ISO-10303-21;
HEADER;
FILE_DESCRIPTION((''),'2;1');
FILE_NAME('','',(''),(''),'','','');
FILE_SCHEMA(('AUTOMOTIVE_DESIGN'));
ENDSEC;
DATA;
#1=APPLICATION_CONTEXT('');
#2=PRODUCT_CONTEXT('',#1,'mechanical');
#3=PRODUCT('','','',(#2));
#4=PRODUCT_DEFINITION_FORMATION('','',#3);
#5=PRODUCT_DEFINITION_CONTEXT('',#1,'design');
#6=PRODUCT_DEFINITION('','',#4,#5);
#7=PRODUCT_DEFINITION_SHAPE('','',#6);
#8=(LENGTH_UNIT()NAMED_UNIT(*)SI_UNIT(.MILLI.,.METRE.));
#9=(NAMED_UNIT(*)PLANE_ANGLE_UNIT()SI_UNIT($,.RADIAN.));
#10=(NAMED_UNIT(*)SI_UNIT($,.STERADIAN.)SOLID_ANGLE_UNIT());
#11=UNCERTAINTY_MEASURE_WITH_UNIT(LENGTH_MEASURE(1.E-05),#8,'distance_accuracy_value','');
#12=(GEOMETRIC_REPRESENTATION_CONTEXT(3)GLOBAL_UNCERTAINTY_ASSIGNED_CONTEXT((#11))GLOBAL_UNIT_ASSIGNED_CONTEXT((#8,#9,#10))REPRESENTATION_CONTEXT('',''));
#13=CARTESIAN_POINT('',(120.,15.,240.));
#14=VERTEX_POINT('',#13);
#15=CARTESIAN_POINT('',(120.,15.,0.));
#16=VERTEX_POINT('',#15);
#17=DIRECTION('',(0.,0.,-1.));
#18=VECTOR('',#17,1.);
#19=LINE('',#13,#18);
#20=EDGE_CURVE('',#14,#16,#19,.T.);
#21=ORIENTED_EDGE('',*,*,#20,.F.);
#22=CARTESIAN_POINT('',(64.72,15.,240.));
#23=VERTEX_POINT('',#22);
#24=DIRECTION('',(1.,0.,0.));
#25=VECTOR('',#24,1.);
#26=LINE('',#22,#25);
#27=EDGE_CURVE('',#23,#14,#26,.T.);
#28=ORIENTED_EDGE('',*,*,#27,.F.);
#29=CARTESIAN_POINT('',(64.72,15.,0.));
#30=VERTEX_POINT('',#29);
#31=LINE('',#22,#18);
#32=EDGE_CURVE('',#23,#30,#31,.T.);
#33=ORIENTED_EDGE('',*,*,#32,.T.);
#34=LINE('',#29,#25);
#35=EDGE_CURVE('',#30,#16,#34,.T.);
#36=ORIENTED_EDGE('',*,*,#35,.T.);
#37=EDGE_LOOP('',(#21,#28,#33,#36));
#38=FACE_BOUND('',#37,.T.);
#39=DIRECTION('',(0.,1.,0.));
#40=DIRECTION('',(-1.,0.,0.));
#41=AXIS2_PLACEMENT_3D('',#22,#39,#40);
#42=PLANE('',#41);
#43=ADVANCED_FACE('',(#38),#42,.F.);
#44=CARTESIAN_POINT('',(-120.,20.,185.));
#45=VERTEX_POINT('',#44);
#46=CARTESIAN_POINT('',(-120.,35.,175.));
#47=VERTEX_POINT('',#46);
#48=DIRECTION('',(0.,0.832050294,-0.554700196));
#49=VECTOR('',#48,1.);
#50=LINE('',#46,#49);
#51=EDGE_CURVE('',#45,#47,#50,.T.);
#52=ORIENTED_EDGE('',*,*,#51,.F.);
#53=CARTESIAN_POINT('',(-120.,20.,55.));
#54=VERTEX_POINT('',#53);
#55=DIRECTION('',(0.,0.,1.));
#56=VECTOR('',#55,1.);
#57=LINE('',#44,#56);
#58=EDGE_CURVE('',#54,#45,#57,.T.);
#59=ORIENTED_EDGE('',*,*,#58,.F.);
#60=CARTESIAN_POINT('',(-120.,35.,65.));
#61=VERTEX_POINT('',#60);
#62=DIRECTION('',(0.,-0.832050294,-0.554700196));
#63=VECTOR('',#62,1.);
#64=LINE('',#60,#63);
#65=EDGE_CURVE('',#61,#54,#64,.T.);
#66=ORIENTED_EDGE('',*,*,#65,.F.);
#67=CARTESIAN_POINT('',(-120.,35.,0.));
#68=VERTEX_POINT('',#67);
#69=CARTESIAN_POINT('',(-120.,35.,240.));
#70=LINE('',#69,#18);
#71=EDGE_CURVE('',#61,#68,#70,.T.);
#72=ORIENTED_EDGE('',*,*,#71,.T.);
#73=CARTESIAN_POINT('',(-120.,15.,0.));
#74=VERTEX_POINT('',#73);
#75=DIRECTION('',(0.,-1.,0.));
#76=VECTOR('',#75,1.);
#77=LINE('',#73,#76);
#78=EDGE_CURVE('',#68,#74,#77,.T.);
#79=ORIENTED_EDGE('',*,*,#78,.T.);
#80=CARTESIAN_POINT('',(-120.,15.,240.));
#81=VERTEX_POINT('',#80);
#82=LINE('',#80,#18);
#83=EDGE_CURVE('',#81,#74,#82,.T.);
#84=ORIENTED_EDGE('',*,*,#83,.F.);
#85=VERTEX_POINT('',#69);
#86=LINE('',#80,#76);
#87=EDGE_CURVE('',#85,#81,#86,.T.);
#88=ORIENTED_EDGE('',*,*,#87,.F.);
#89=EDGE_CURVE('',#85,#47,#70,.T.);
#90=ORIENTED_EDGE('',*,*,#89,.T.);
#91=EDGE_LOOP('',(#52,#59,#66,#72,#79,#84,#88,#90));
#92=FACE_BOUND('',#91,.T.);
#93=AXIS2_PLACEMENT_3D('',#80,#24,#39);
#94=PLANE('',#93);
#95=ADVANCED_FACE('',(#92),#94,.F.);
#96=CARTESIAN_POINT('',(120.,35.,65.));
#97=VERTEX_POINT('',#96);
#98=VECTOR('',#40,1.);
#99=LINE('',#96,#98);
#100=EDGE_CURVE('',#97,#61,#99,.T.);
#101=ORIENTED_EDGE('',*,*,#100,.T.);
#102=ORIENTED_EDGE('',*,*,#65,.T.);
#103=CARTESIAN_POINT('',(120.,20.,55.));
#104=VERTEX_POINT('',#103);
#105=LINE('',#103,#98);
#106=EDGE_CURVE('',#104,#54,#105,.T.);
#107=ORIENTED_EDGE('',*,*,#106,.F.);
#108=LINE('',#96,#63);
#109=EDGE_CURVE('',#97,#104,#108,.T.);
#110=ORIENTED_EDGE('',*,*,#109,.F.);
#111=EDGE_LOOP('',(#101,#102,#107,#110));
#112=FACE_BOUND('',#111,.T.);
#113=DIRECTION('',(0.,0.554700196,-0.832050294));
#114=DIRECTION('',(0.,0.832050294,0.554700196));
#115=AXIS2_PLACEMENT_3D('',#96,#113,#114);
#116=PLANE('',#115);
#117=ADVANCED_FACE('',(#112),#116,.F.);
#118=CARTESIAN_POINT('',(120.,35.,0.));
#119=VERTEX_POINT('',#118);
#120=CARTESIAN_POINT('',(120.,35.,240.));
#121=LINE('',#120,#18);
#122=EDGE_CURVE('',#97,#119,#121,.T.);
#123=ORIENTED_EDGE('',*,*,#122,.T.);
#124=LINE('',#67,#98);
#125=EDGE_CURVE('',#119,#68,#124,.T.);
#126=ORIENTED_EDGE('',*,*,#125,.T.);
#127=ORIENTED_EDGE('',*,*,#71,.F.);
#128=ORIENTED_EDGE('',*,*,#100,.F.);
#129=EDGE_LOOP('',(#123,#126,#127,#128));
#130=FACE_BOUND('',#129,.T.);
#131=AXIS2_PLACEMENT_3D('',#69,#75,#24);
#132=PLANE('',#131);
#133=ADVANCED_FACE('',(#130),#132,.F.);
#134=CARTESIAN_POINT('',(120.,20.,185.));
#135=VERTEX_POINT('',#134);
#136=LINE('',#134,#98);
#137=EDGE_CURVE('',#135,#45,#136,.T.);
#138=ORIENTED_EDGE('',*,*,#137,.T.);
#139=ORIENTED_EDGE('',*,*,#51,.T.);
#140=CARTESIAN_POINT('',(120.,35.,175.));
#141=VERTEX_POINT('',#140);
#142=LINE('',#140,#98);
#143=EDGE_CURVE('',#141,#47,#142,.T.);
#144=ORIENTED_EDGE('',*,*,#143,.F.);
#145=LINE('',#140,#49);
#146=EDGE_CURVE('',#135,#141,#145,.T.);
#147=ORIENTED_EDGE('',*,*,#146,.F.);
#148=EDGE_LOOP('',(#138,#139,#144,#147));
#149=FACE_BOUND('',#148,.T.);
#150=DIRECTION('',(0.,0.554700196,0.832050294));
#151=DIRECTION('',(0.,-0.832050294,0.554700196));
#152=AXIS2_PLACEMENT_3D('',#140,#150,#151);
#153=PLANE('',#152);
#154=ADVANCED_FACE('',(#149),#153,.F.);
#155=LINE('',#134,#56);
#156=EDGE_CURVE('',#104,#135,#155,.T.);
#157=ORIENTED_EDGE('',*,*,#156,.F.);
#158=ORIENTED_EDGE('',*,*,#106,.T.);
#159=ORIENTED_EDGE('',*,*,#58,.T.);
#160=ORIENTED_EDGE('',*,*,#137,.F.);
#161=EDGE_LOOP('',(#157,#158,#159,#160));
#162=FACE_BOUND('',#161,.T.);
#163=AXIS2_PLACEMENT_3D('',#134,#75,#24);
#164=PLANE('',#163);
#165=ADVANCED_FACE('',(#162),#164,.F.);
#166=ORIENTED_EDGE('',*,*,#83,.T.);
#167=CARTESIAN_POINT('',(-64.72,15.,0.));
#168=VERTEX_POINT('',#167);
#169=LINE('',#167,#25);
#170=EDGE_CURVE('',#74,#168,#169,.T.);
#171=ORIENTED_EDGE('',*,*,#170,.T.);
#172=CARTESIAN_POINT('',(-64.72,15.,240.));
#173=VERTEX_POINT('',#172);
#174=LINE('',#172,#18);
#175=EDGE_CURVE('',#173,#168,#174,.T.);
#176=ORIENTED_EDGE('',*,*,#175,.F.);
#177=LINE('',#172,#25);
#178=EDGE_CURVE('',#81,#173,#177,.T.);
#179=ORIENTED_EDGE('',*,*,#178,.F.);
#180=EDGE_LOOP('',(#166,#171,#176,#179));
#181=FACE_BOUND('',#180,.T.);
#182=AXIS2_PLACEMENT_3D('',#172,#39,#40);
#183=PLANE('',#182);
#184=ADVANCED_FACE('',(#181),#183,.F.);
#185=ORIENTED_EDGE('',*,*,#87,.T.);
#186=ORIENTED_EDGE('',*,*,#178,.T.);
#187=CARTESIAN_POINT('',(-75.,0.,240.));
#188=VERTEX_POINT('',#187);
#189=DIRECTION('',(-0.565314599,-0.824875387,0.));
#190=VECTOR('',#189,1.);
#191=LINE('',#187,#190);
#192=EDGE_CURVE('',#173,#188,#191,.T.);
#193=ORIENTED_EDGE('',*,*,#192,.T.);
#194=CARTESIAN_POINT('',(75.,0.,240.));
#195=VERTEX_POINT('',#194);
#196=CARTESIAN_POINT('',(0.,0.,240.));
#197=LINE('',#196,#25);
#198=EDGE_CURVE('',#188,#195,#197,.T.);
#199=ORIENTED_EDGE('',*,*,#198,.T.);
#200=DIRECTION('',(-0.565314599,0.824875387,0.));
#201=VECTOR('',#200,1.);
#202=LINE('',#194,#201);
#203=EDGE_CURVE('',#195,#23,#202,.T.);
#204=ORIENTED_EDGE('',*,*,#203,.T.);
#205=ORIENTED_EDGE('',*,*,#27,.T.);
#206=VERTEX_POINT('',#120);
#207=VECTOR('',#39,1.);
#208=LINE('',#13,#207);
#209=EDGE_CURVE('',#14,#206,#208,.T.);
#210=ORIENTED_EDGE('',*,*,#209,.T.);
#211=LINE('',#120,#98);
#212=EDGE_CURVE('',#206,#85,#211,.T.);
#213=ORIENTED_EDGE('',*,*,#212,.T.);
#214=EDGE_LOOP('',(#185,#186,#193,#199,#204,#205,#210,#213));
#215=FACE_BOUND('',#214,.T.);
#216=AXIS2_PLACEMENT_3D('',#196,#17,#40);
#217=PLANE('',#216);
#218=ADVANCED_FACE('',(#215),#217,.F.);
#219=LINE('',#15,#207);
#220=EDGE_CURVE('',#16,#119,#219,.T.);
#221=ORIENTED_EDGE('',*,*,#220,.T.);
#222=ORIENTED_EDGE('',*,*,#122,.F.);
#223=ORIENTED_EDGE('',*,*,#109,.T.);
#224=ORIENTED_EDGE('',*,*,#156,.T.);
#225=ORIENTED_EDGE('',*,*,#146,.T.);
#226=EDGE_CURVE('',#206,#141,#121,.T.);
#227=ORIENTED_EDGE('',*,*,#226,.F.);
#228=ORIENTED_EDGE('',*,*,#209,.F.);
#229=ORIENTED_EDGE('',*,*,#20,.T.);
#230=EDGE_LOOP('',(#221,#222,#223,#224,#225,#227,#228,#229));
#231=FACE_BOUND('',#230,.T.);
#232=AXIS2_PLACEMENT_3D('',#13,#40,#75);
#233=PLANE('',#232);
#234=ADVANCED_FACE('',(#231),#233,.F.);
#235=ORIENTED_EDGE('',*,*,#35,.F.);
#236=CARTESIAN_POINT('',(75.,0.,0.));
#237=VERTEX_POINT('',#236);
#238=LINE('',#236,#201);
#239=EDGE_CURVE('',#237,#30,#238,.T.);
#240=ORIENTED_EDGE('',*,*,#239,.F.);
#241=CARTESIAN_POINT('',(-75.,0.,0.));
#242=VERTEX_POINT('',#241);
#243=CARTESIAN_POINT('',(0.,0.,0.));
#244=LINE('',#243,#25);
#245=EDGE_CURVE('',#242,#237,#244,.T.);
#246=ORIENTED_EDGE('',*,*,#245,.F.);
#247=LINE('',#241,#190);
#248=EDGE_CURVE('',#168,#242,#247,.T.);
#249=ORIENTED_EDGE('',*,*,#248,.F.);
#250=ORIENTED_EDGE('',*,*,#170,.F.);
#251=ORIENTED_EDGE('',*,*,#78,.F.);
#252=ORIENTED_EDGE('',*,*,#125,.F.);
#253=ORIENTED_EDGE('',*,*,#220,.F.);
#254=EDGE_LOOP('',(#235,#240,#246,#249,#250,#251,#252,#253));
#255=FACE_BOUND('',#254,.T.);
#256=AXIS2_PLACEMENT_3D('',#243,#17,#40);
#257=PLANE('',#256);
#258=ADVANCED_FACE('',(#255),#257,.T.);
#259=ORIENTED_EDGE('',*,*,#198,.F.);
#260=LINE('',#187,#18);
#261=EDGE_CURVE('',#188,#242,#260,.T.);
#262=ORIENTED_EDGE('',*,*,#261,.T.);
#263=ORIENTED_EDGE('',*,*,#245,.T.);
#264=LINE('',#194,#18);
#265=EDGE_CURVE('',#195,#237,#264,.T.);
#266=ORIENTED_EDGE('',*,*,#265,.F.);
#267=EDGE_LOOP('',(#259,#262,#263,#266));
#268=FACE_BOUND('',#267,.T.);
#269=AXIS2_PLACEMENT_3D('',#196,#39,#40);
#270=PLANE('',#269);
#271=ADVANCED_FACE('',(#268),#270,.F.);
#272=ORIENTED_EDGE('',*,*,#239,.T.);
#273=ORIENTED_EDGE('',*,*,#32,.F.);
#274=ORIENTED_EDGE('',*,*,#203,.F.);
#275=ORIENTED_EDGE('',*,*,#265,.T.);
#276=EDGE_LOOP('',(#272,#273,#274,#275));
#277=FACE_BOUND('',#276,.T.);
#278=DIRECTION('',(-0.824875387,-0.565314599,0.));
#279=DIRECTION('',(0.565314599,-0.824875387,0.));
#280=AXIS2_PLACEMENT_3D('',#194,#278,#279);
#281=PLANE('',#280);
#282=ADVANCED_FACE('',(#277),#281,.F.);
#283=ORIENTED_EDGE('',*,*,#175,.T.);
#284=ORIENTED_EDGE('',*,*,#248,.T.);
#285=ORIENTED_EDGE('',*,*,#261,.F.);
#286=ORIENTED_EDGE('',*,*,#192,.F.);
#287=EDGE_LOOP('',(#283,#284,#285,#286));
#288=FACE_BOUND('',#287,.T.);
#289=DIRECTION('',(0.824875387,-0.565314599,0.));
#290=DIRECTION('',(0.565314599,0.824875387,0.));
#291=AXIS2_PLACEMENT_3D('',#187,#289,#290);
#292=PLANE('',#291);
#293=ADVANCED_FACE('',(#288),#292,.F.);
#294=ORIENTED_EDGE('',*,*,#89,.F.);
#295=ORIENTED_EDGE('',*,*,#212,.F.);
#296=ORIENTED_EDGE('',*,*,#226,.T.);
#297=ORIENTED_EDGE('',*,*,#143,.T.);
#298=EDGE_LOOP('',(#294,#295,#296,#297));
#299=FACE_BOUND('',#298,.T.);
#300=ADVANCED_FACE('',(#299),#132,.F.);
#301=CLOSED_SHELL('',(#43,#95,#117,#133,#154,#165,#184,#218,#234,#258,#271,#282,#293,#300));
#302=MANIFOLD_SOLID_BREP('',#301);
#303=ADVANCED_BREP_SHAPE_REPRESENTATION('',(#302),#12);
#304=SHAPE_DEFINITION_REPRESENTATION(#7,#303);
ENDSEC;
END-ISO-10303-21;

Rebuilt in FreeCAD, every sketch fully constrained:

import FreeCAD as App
import Part
import Sketcher

V = App.Vector


def add_polygon(sketch, points):
    """Adds a closed chain of lines whose ends are joined by coincident constraints."""
    first, n = sketch.GeometryCount, len(points)
    for a, b in zip(points, points[1:] + points[:1]):
        sketch.addGeometry(Part.LineSegment(App.Vector(*a, 0), App.Vector(*b, 0)), False)
    for i in range(n):
        sketch.addConstraint(Sketcher.Constraint("Coincident", first + i, 2, first + (i + 1) % n, 1))

doc = App.newDocument("Part")
body = doc.addObject("PartDesign::Body", "Body")

sketch1 = doc.addObject("Sketcher::SketchObject", "Sketch")
body.addObject(sketch1)
sketch1.AttachmentSupport = (doc.XY_Plane, [""])
sketch1.MapMode = "FlatFace"
add_polygon(sketch1, [(75, 0), (65, 15), (120, 15), (120, 35), (-120, 35), (-120, 15), (-65, 15), (-75, 0)])
sketch1.addConstraint(Sketcher.Constraint("Horizontal", 1))
sketch1.addConstraint(Sketcher.Constraint("Vertical", 2))
sketch1.addConstraint(Sketcher.Constraint("Horizontal", 3))
sketch1.addConstraint(Sketcher.Constraint("Vertical", 4))
sketch1.addConstraint(Sketcher.Constraint("Horizontal", 5))
sketch1.addConstraint(Sketcher.Constraint("Horizontal", 7))
sketch1.addConstraint(Sketcher.Constraint("Symmetric", 6, 2, 7, 2, -1, 1))
sketch1.addConstraint(Sketcher.Constraint("Symmetric", 1, 2, 4, 2, -2))
sketch1.addConstraint(Sketcher.Constraint("Equal", 1, 5))
sketch1.addConstraint(Sketcher.Constraint("DistanceX", 3, 2, 3, 1, 240.0))
sketch1.addConstraint(Sketcher.Constraint("DistanceX", 7, 1, 7, 2, 150.0))
sketch1.addConstraint(Sketcher.Constraint("DistanceY", 2, 1, 2, 2, 20.0))
sketch1.addConstraint(Sketcher.Constraint("DistanceY", -1, 1, 0, 2, 15.0))
sketch1.addConstraint(Sketcher.Constraint("DistanceX", 1, 1, 1, 2, 55.28))
pad1 = doc.addObject("PartDesign::Pad", "Pad")
body.addObject(pad1)
pad1.Profile = sketch1
pad1.Length = 240

sketch2 = doc.addObject("Sketcher::SketchObject", "Sketch001")
body.addObject(sketch2)
sketch2.AttachmentSupport = (doc.YZ_Plane, [""])
sketch2.MapMode = "FlatFace"
sketch2.AttachmentOffset = App.Placement(V(0, 0, -120), App.Rotation())
add_polygon(sketch2, [(35, 175), (35, 65), (20, 55), (20, 185)])
sketch2.addConstraint(Sketcher.Constraint("Vertical", 0))
sketch2.addConstraint(Sketcher.Constraint("Vertical", 2))
sketch2.addConstraint(Sketcher.Constraint("Equal", 1, 3))
sketch2.addConstraint(Sketcher.Constraint("DistanceY", 0, 2, 0, 1, 110.0))
sketch2.addConstraint(Sketcher.Constraint("DistanceY", 2, 1, 2, 2, 130.0))
sketch2.addConstraint(Sketcher.Constraint("DistanceX", -1, 1, 0, 2, 35.0))
sketch2.addConstraint(Sketcher.Constraint("DistanceY", -1, 1, 0, 2, 65.0))
sketch2.addConstraint(Sketcher.Constraint("DistanceX", -1, 1, 1, 2, 20.0))
pocket1 = doc.addObject("PartDesign::Pocket", "Pocket")
body.addObject(pocket1)
pocket1.Profile = sketch2
pocket1.Type = "ThroughAll"
pocket1.Reversed = True

doc.recompute()
